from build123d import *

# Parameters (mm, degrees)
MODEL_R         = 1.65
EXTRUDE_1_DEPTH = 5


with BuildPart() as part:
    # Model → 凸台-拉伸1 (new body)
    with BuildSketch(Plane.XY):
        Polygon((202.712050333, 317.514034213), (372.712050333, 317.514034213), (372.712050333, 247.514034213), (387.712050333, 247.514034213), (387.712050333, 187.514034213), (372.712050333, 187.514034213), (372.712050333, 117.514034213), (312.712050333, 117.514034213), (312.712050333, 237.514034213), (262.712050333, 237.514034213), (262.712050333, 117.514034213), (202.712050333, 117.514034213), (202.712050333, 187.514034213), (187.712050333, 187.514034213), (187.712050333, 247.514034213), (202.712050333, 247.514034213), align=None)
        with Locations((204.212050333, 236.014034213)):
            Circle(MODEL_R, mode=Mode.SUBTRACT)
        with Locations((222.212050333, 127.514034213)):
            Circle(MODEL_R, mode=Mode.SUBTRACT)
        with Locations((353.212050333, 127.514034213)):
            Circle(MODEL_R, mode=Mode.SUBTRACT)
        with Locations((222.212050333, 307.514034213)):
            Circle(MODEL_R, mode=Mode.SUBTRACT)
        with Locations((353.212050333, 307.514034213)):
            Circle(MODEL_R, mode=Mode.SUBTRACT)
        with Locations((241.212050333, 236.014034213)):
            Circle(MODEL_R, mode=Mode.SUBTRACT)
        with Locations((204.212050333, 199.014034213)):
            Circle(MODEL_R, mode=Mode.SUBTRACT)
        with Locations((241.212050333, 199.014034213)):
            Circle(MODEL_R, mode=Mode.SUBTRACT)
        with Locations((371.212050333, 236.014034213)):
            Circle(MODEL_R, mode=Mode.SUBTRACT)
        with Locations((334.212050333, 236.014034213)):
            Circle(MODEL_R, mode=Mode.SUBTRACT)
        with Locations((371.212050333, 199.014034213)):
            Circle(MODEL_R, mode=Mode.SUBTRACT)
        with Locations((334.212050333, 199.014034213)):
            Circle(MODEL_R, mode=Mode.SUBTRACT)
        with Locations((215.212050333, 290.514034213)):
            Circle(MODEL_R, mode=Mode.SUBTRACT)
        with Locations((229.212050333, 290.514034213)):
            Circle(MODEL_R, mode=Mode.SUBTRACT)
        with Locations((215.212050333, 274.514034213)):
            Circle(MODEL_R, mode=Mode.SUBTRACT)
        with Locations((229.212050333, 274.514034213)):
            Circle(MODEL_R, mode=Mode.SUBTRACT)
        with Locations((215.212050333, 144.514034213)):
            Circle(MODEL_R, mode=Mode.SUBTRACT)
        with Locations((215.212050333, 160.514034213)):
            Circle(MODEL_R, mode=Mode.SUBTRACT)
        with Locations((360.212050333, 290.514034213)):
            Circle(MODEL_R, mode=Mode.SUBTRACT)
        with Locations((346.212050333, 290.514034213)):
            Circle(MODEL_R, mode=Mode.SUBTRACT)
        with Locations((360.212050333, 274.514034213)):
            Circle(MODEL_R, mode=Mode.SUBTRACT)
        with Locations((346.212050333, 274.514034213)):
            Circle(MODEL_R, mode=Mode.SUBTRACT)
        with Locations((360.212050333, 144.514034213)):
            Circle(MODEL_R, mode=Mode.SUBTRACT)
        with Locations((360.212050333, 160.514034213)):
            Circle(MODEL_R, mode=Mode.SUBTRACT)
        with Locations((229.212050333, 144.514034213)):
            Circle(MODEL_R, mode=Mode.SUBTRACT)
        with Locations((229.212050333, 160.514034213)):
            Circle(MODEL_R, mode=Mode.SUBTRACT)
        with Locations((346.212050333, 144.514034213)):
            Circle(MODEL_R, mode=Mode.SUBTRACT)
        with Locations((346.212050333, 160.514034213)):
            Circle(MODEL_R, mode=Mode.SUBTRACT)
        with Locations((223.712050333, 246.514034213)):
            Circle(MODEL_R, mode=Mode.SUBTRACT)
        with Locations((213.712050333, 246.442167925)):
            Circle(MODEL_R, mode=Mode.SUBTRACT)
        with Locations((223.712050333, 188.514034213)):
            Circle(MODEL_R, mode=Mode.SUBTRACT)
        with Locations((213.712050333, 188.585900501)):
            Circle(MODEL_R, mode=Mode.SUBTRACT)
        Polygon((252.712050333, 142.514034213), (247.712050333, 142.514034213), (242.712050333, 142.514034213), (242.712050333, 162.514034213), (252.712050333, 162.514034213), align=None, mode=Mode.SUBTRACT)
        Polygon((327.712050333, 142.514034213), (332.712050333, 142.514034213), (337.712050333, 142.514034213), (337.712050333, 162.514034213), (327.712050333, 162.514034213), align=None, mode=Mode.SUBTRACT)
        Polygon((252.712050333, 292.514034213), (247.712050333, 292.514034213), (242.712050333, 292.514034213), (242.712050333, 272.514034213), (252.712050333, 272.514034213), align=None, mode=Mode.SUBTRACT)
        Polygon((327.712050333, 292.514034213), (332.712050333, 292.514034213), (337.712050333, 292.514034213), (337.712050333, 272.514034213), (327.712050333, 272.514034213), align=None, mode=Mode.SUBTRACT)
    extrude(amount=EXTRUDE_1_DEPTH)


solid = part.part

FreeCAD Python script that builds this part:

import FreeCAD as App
import Part
import Sketcher

V = App.Vector


def add_polygon(sketch, points):
    """Adds a closed chain of lines whose ends are joined by coincident constraints."""
    first, n = sketch.GeometryCount, len(points)
    for a, b in zip(points, points[1:] + points[:1]):
        sketch.addGeometry(Part.LineSegment(App.Vector(*a, 0), App.Vector(*b, 0)), False)
    for i in range(n):
        sketch.addConstraint(Sketcher.Constraint("Coincident", first + i, 2, first + (i + 1) % n, 1))

doc = App.newDocument("Part")
params = doc.addObject("Spreadsheet::Sheet", "Params")
for row, (alias, value) in enumerate([
    ("sketch1_diameter", "3.3 mm"),
    ("sketch1_width", "170 mm"),
    ("sketch1_width2", "15 mm"),
    ("sketch1_width3", "60 mm"),
    ("sketch1_width4", "10 mm"),
    ("pad1_length", "5 mm"),
], start=1):
    params.set(f"A{row}", alias)
    params.set(f"B{row}", "=" + value)
    params.setAlias(f"B{row}", alias)

body = doc.addObject("PartDesign::Body", "Body")

# Sketch on XY plane
sketch1 = body.newObject("Sketcher::SketchObject", "Sketch")
sketch1.AttachmentSupport = (doc.getObject("XY_Plane"), [""])
sketch1.MapMode = "FlatFace"
add_polygon(sketch1, [(372.7, 317.5), (202.7, 317.5), (202.7, 247.5), (187.7, 247.5), (187.7, 187.5), (202.7, 187.5), (202.7, 117.5), (262.7, 117.5), (262.7, 237.5), (312.7, 237.5), (312.7, 117.5), (372.7, 117.5), (372.7, 187.5), (387.7, 187.5), (387.7, 247.5), (372.7, 247.5)])  # lines 0-15
sketch1.addGeometry(Part.Circle(V(353.2, 127.5, 0), V(0, 0, 1), 1.6), False)  # 16
sketch1.addGeometry(Part.Circle(V(360.2, 144.5, 0), V(0, 0, 1), 1.6), False)  # 17
sketch1.addGeometry(Part.Circle(V(346.2, 144.5, 0), V(0, 0, 1), 1.6), False)  # 18
sketch1.addGeometry(Part.Circle(V(360.2, 160.5, 0), V(0, 0, 1), 1.6), False)  # 19
add_polygon(sketch1, [(327.7, 142.5), (327.7, 162.5), (337.7, 162.5), (337.7, 142.5)])  # lines 20-23
sketch1.addGeometry(Part.Circle(V(346.2, 160.5, 0), V(0, 0, 1), 1.6), False)  # 24
sketch1.addGeometry(Part.Circle(V(371.2, 199, 0), V(0, 0, 1), 1.6), False)  # 25
sketch1.addGeometry(Part.Circle(V(334.2, 199, 0), V(0, 0, 1), 1.6), False)  # 26
add_polygon(sketch1, [(252.7, 142.5), (242.7, 142.5), (242.7, 162.5), (252.7, 162.5)])  # lines 27-30
sketch1.addGeometry(Part.Circle(V(229.2, 144.5, 0), V(0, 0, 1), 1.6), False)  # 31
sketch1.addGeometry(Part.Circle(V(222.2, 127.5, 0), V(0, 0, 1), 1.6), False)  # 32
sketch1.addGeometry(Part.Circle(V(215.2, 144.5, 0), V(0, 0, 1), 1.6), False)  # 33
sketch1.addGeometry(Part.Circle(V(229.2, 160.5, 0), V(0, 0, 1), 1.6), False)  # 34
sketch1.addGeometry(Part.Circle(V(215.2, 160.5, 0), V(0, 0, 1), 1.6), False)  # 35
sketch1.addGeometry(Part.Circle(V(223.7, 188.5, 0), V(0, 0, 1), 1.6), False)  # 36
sketch1.addGeometry(Part.Circle(V(213.7, 188.6, 0), V(0, 0, 1), 1.6), False)  # 37
sketch1.addGeometry(Part.Circle(V(241.2, 199, 0), V(0, 0, 1), 1.6), False)  # 38
sketch1.addGeometry(Part.Circle(V(204.2, 199, 0), V(0, 0, 1), 1.6), False)  # 39
sketch1.addGeometry(Part.Circle(V(371.2, 236, 0), V(0, 0, 1), 1.6), False)  # 40
sketch1.addGeometry(Part.Circle(V(334.2, 236, 0), V(0, 0, 1), 1.6), False)  # 41
sketch1.addGeometry(Part.Circle(V(360.2, 274.5, 0), V(0, 0, 1), 1.6), False)  # 42
sketch1.addGeometry(Part.Circle(V(346.2, 274.5, 0), V(0, 0, 1), 1.6), False)  # 43
add_polygon(sketch1, [(327.7, 292.5), (337.7, 292.5), (337.7, 272.5), (327.7, 272.5)])  # lines 44-47
sketch1.addGeometry(Part.Circle(V(360.2, 290.5, 0), V(0, 0, 1), 1.6), False)  # 48
sketch1.addGeometry(Part.Circle(V(353.2, 307.5, 0), V(0, 0, 1), 1.6), False)  # 49
sketch1.addGeometry(Part.Circle(V(346.2, 290.5, 0), V(0, 0, 1), 1.6), False)  # 50
sketch1.addGeometry(Part.Circle(V(241.2, 236, 0), V(0, 0, 1), 1.6), False)  # 51
sketch1.addGeometry(Part.Circle(V(204.2, 236, 0), V(0, 0, 1), 1.6), False)  # 52
sketch1.addGeometry(Part.Circle(V(223.7, 246.5, 0), V(0, 0, 1), 1.6), False)  # 53
sketch1.addGeometry(Part.Circle(V(213.7, 246.4, 0), V(0, 0, 1), 1.6), False)  # 54
add_polygon(sketch1, [(252.7, 292.5), (252.7, 272.5), (242.7, 272.5), (242.7, 292.5)])  # lines 55-58
sketch1.addGeometry(Part.Circle(V(229.2, 274.5, 0), V(0, 0, 1), 1.6), False)  # 59
sketch1.addGeometry(Part.Circle(V(215.2, 274.5, 0), V(0, 0, 1), 1.6), False)  # 60
sketch1.addGeometry(Part.Circle(V(229.2, 290.5, 0), V(0, 0, 1), 1.6), False)  # 61
sketch1.addGeometry(Part.Circle(V(215.2, 290.5, 0), V(0, 0, 1), 1.6), False)  # 62
sketch1.addGeometry(Part.Circle(V(222.2, 307.5, 0), V(0, 0, 1), 1.6), False)  # 63
sketch1.addConstraint([
    Sketcher.Constraint("Horizontal", 0),
    Sketcher.Constraint("Vertical", 1),
    Sketcher.Constraint("Horizontal", 2),
    Sketcher.Constraint("Vertical", 3),
    Sketcher.Constraint("Horizontal", 4),
    Sketcher.Constraint("Vertical", 5),
    Sketcher.Constraint("Horizontal", 6),
    Sketcher.Constraint("Vertical", 7),
    Sketcher.Constraint("Horizontal", 8),
    Sketcher.Constraint("Vertical", 9),
    Sketcher.Constraint("Horizontal", 10),
    Sketcher.Constraint("Vertical", 11),
    Sketcher.Constraint("Horizontal", 12),
    Sketcher.Constraint("Vertical", 13),
    Sketcher.Constraint("Horizontal", 14),
    Sketcher.Constraint("Vertical", 15),
    Sketcher.Constraint("Vertical", 20),
    Sketcher.Constraint("Horizontal", 21),
    Sketcher.Constraint("Vertical", 22),
    Sketcher.Constraint("Horizontal", 23),
    Sketcher.Constraint("Horizontal", 27),
    Sketcher.Constraint("Vertical", 28),
    Sketcher.Constraint("Horizontal", 29),
    Sketcher.Constraint("Vertical", 30),
    Sketcher.Constraint("Horizontal", 44),
    Sketcher.Constraint("Vertical", 45),
    Sketcher.Constraint("Horizontal", 46),
    Sketcher.Constraint("Vertical", 47),
    Sketcher.Constraint("Vertical", 55),
    Sketcher.Constraint("Horizontal", 56),
    Sketcher.Constraint("Vertical", 57),
    Sketcher.Constraint("Horizontal", 58),
    Sketcher.Constraint("Equal", 16, 17),
    Sketcher.Constraint("Equal", 17, 18),
    Sketcher.Constraint("Equal", 18, 19),
    Sketcher.Constraint("Equal", 19, 24),
    Sketcher.Constraint("Equal", 24, 25),
    Sketcher.Constraint("Equal", 25, 26),
    Sketcher.Constraint("Equal", 26, 31),
    Sketcher.Constraint("Equal", 31, 32),
    Sketcher.Constraint("Equal", 32, 33),
    Sketcher.Constraint("Equal", 33, 34),
    Sketcher.Constraint("Equal", 34, 35),
    Sketcher.Constraint("Equal", 35, 36),
    Sketcher.Constraint("Equal", 36, 37),
    Sketcher.Constraint("Equal", 37, 38),
    Sketcher.Constraint("Equal", 38, 39),
    Sketcher.Constraint("Equal", 39, 40),
    Sketcher.Constraint("Equal", 40, 41),
    Sketcher.Constraint("Equal", 41, 42),
    Sketcher.Constraint("Equal", 42, 43),
    Sketcher.Constraint("Equal", 43, 48),
    Sketcher.Constraint("Equal", 48, 49),
    Sketcher.Constraint("Equal", 49, 50),
    Sketcher.Constraint("Equal", 50, 51),
    Sketcher.Constraint("Equal", 51, 52),
    Sketcher.Constraint("Equal", 52, 53),
    Sketcher.Constraint("Equal", 53, 54),
    Sketcher.Constraint("Equal", 54, 59),
    Sketcher.Constraint("Equal", 59, 60),
    Sketcher.Constraint("Equal", 60, 61),
    Sketcher.Constraint("Equal", 61, 62),
    Sketcher.Constraint("Equal", 62, 63),
    Sketcher.Constraint("Horizontal", 17, 3, 18, 3),
    Sketcher.Constraint("Horizontal", 19, 3, 24, 3),
    Sketcher.Constraint("Horizontal", 25, 3, 26, 3),
    Sketcher.Constraint("Horizontal", 18, 3, 31, 3),
    Sketcher.Constraint("Horizontal", 16, 3, 32, 3),
    Sketcher.Constraint("Horizontal", 31, 3, 33, 3),
    Sketcher.Constraint("Horizontal", 24, 3, 34, 3),
    Sketcher.Constraint("Horizontal", 34, 3, 35, 3),
    Sketcher.Constraint("Horizontal", 26, 3, 38, 3),
    Sketcher.Constraint("Horizontal", 38, 3, 39, 3),
    Sketcher.Constraint("Horizontal", 40, 3, 41, 3),
    Sketcher.Constraint("Horizontal", 42, 3, 43, 3),
    Sketcher.Constraint("Horizontal", 48, 3, 50, 3),
    Sketcher.Constraint("Horizontal", 41, 3, 51, 3),
    Sketcher.Constraint("Horizontal", 51, 3, 52, 3),
    Sketcher.Constraint("Horizontal", 43, 3, 59, 3),
    Sketcher.Constraint("Horizontal", 59, 3, 60, 3),
    Sketcher.Constraint("Horizontal", 50, 3, 61, 3),
    Sketcher.Constraint("Horizontal", 61, 3, 62, 3),
    Sketcher.Constraint("Horizontal", 49, 3, 63, 3),
    Sketcher.Constraint("Horizontal", 6, 2, 9, 2),
    Sketcher.Constraint("Horizontal", 4, 2, 11, 2),
    Sketcher.Constraint("Horizontal", 2, 2, 13, 2),
    Sketcher.Constraint("Horizontal", 23, 2, 27, 2),
    Sketcher.Constraint("Horizontal", 21, 2, 28, 2),
    Sketcher.Constraint("Horizontal", 46, 2, 55, 2),
    Sketcher.Constraint("Horizontal", 47, 2, 57, 2),
    Sketcher.Constraint("Vertical", 17, 3, 19, 3),
    Sketcher.Constraint("Vertical", 18, 3, 24, 3),
    Sketcher.Constraint("Vertical", 31, 3, 34, 3),
    Sketcher.Constraint("Vertical", 33, 3, 35, 3),
    Sketcher.Constraint("Vertical", 25, 3, 40, 3),
    Sketcher.Constraint("Vertical", 26, 3, 41, 3),
    Sketcher.Constraint("Vertical", 19, 3, 42, 3),
    Sketcher.Constraint("Vertical", 24, 3, 43, 3),
    Sketcher.Constraint("Vertical", 42, 3, 48, 3),
    Sketcher.Constraint("Vertical", 16, 3, 49, 3),
    Sketcher.Constraint("Vertical", 43, 3, 50, 3),
    Sketcher.Constraint("Vertical", 38, 3, 51, 3),
    Sketcher.Constraint("Vertical", 39, 3, 52, 3),
    Sketcher.Constraint("Vertical", 36, 3, 53, 3),
    Sketcher.Constraint("Vertical", 37, 3, 54, 3),
    Sketcher.Constraint("Vertical", 34, 3, 59, 3),
    Sketcher.Constraint("Vertical", 35, 3, 60, 3),
    Sketcher.Constraint("Vertical", 59, 3, 61, 3),
    Sketcher.Constraint("Vertical", 60, 3, 62, 3),
    Sketcher.Constraint("Vertical", 32, 3, 63, 3),
    Sketcher.Constraint("Vertical", 1, 2, 4, 2),
    Sketcher.Constraint("Vertical", 11, 2, 14, 2),
    Sketcher.Constraint("Vertical", 22, 2, 44, 2),
    Sketcher.Constraint("Vertical", 23, 2, 46, 2),
    Sketcher.Constraint("Vertical", 30, 2, 55, 2),
    Sketcher.Constraint("Vertical", 28, 2, 56, 2),
    Sketcher.Constraint("Equal", 6, 10),
    Sketcher.Constraint("Equal", 4, 12),
    Sketcher.Constraint("Equal", 23, 27),
    Sketcher.Constraint("Equal", 10, 3),
    Sketcher.Constraint("Equal", 1, 5),
    Sketcher.Constraint("Equal", 30, 45),
    Sketcher.Constraint("Diameter", 16, 3.3),
    Sketcher.Constraint("DistanceX", 0, 2, 0, 1, 170.0),
    Sketcher.Constraint("DistanceX", 2, 2, 2, 1, 15.0),
    Sketcher.Constraint("DistanceX", 6, 1, 6, 2, 60.0),
    Sketcher.Constraint("DistanceX", 21, 1, 21, 2, 10.0),
    Sketcher.Constraint("DistanceY", 1, 2, 1, 1, 70.0),
    Sketcher.Constraint("DistanceY", 7, 1, 7, 2, 120.0),
    Sketcher.Constraint("DistanceY", 20, 1, 20, 2, 20.0),
    Sketcher.Constraint("DistanceY", -1, 1, 37, 3, 188.585901),
    Sketcher.Constraint("DistanceX", -1, 1, 16, 3, 353.21205),
    Sketcher.Constraint("DistanceX", -1, 1, 17, 3, 360.21205),
    Sketcher.Constraint("DistanceX", -1, 1, 18, 3, 346.21205),
    Sketcher.Constraint("DistanceX", -1, 1, 25, 3, 371.21205),
    Sketcher.Constraint("DistanceX", -1, 1, 26, 3, 334.21205),
    Sketcher.Constraint("DistanceX", -1, 1, 31, 3, 229.21205),
    Sketcher.Constraint("DistanceX", -1, 1, 32, 3, 222.21205),
    Sketcher.Constraint("DistanceX", -1, 1, 33, 3, 215.21205),
    Sketcher.Constraint("DistanceX", -1, 1, 36, 3, 223.71205),
    Sketcher.Constraint("DistanceX", -1, 1, 37, 3, 213.71205),
    Sketcher.Constraint("DistanceX", -1, 1, 38, 3, 241.21205),
    Sketcher.Constraint("DistanceX", -1, 1, 39, 3, 204.21205),
    Sketcher.Constraint("DistanceX", -1, 1, 0, 2, 202.71205),
    Sketcher.Constraint("DistanceX", -1, 1, 20, 2, 327.71205),
    Sketcher.Constraint("DistanceX", -1, 1, 27, 2, 242.71205),
    Sketcher.Constraint("DistanceY", -1, 1, 16, 3, 127.514034),
    Sketcher.Constraint("DistanceY", -1, 1, 17, 3, 144.514034),
    Sketcher.Constraint("DistanceY", -1, 1, 19, 3, 160.514034),
    Sketcher.Constraint("DistanceY", -1, 1, 25, 3, 199.014034),
    Sketcher.Constraint("DistanceY", -1, 1, 36, 3, 188.514034),
    Sketcher.Constraint("DistanceY", -1, 1, 40, 3, 236.014034),
    Sketcher.Constraint("DistanceY", -1, 1, 42, 3, 274.514034),
    Sketcher.Constraint("DistanceY", -1, 1, 48, 3, 290.514034),
    Sketcher.Constraint("DistanceY", -1, 1, 49, 3, 307.514034),
    Sketcher.Constraint("DistanceY", -1, 1, 53, 3, 246.514034),
    Sketcher.Constraint("DistanceY", -1, 1, 54, 3, 246.442168),
    Sketcher.Constraint("DistanceY", -1, 1, 0, 2, 317.514034),
    Sketcher.Constraint("DistanceY", -1, 1, 20, 2, 162.514034),
    Sketcher.Constraint("DistanceY", -1, 1, 44, 2, 292.514034),
])
sketch1.setExpression("Constraints[154]", "Params.sketch1_diameter")
sketch1.setExpression("Constraints[155]", "Params.sketch1_width")
sketch1.setExpression("Constraints[156]", "Params.sketch1_width2")
sketch1.setExpression("Constraints[157]", "Params.sketch1_width3")
sketch1.setExpression("Constraints[158]", "Params.sketch1_width4")
pad1 = body.newObject("PartDesign::Pad", "Pad")
pad1.Profile = sketch1
pad1.setExpression("Length", "Params.pad1_length")

doc.recompute()
